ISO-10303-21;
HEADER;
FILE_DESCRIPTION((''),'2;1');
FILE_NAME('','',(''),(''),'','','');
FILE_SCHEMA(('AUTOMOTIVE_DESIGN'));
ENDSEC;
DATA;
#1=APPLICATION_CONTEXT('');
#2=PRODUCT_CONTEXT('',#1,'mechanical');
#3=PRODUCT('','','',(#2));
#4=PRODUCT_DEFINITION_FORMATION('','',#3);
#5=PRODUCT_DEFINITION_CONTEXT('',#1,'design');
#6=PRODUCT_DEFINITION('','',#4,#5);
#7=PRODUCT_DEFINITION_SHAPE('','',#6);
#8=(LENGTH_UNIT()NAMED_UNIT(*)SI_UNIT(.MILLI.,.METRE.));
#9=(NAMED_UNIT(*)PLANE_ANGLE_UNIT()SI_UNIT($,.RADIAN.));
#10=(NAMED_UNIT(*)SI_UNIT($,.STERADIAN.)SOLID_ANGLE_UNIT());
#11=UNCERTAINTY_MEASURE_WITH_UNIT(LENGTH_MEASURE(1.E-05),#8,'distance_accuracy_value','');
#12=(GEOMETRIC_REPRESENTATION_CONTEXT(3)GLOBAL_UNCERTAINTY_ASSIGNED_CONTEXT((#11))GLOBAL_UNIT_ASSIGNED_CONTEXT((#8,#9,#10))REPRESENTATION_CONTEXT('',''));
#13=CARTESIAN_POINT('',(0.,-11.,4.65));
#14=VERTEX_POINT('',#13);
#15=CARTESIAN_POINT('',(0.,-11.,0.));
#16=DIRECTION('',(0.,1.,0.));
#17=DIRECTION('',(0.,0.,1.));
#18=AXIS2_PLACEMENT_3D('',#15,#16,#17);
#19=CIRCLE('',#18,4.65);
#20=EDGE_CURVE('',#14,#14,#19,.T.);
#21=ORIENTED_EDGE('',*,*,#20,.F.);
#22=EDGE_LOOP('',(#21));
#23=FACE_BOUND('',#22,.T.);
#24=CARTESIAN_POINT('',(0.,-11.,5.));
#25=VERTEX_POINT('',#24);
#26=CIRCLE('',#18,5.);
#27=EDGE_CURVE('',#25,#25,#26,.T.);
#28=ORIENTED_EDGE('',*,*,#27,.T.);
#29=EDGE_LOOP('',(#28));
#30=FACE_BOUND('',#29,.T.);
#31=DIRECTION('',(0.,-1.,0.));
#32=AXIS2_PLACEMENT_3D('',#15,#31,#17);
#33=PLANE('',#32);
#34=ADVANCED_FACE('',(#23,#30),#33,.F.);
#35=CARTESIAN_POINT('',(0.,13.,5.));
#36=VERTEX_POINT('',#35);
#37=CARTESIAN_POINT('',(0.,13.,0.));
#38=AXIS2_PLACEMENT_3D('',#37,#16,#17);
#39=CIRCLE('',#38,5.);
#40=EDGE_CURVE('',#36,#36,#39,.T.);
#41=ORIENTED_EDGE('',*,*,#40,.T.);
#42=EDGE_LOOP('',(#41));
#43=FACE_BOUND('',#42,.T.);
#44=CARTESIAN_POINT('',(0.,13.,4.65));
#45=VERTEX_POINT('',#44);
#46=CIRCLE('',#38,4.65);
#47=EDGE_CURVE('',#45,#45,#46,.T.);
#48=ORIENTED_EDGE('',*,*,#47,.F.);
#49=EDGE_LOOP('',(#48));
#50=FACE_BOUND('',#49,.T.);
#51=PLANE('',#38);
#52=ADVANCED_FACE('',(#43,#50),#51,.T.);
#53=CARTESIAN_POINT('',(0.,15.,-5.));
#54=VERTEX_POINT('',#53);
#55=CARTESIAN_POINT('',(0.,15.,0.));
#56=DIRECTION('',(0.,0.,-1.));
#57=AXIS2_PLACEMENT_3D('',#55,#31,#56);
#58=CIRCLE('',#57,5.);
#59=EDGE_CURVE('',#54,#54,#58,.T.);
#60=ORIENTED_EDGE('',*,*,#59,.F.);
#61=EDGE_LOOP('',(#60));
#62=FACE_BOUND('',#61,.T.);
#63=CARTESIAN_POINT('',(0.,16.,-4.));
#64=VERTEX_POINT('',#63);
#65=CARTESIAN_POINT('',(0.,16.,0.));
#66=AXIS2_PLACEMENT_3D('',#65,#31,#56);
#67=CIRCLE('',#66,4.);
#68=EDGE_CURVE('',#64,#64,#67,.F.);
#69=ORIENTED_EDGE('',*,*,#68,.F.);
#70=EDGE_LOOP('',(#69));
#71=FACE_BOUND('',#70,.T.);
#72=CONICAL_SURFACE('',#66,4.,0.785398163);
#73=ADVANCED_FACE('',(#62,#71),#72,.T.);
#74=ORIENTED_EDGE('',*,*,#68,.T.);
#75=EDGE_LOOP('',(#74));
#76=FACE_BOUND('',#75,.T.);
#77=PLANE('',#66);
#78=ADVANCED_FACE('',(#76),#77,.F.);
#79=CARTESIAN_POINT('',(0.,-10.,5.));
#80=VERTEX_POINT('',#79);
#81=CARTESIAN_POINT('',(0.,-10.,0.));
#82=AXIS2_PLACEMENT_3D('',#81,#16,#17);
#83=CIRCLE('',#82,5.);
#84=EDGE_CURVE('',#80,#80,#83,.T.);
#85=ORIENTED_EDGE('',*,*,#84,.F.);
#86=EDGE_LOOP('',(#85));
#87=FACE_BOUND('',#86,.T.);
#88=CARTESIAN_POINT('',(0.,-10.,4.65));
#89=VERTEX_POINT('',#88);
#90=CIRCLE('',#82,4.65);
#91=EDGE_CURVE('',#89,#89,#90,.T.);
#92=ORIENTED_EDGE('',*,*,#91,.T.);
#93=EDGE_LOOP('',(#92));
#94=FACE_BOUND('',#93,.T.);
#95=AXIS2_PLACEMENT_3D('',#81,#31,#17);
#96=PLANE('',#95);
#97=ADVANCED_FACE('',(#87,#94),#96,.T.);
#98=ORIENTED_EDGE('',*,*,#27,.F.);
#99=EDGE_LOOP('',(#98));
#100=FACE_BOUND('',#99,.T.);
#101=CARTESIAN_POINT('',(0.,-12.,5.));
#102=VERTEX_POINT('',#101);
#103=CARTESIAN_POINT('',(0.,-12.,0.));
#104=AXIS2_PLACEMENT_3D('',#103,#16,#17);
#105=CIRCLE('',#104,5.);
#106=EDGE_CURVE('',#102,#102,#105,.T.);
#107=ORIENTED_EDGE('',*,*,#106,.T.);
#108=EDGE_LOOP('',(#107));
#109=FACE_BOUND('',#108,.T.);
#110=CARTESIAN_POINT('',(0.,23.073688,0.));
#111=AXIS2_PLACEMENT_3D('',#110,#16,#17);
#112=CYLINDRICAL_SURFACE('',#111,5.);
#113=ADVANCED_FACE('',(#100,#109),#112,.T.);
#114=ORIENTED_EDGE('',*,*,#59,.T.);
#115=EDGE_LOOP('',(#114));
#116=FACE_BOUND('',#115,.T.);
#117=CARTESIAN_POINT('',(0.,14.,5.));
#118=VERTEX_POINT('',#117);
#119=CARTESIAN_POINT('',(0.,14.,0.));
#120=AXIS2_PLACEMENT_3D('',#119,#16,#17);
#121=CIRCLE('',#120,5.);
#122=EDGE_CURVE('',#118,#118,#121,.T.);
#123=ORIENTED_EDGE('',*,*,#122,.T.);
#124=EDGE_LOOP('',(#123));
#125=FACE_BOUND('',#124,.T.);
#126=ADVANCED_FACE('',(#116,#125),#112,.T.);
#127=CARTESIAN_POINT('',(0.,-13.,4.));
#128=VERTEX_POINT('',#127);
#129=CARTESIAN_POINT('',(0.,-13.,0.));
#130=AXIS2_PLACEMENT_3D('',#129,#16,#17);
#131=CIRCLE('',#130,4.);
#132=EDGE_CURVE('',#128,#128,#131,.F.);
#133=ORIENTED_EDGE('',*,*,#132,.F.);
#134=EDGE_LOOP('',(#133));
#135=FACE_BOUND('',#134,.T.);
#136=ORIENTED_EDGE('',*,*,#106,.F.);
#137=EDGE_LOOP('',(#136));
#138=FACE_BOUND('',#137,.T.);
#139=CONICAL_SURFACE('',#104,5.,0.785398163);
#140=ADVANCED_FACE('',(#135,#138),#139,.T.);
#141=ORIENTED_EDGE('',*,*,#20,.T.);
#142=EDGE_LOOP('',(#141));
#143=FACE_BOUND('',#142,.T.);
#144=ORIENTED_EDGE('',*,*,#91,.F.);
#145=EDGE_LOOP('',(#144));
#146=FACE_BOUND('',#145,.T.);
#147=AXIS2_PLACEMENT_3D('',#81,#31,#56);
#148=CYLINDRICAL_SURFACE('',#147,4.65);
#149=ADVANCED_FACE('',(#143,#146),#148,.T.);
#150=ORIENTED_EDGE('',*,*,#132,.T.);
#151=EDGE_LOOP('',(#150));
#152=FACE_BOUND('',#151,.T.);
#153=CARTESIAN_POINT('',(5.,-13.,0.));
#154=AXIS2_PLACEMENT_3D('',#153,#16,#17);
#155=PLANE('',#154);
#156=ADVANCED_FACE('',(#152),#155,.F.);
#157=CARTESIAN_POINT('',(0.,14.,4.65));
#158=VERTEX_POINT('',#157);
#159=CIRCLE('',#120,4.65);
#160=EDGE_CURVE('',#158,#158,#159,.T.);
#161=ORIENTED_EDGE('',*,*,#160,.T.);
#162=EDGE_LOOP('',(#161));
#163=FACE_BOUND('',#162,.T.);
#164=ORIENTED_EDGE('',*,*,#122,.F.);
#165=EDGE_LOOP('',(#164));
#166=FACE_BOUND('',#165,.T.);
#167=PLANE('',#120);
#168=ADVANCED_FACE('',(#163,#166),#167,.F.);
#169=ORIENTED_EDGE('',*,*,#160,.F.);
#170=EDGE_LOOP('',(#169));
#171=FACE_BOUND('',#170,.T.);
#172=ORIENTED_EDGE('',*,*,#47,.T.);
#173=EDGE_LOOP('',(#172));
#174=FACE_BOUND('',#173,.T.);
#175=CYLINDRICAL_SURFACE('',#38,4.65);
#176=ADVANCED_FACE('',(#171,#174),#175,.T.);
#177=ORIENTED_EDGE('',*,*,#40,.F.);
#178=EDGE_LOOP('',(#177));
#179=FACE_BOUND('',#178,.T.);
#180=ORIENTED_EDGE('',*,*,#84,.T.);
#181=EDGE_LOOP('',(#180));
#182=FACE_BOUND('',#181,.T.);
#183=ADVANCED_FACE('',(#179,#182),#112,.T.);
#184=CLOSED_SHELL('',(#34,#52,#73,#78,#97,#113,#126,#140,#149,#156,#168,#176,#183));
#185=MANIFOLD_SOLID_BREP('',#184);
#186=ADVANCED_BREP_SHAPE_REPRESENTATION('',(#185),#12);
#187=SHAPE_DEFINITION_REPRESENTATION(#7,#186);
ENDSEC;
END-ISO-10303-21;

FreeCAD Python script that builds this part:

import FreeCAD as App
import Part
import Sketcher


def edges_at(feature, points):
    """Names of the edges that pass closest to the given points."""
    edges = feature.Shape.Edges
    near = lambda p: min(range(len(edges)), key=lambda i: edges[i].distToShape(Part.Vertex(*p))[0])
    return sorted({f"Edge{near(p) + 1}" for p in points})

doc = App.newDocument("Part")
body = doc.addObject("PartDesign::Body", "Body")

# Sketch on XY plane
sketch1 = body.newObject("Sketcher::SketchObject", "Sketch")
sketch1.AttachmentSupport = (doc.getObject("XY_Plane"), [""])
sketch1.MapMode = "FlatFace"
sketch1.addGeometry([
    Part.LineSegment(App.Vector(5, 16, 0), App.Vector(0, 16, 0)),
    Part.LineSegment(App.Vector(0, 16, 0), App.Vector(0, -13, 0)),
    Part.LineSegment(App.Vector(0, -13, 0), App.Vector(5, -13, 0)),
    Part.LineSegment(App.Vector(5, -13, 0), App.Vector(5, 16, 0)),
], False)
sketch1.addConstraint([
    Sketcher.Constraint("Coincident", 0, 2, 1, 1),
    Sketcher.Constraint("Coincident", 1, 2, 2, 1),
    Sketcher.Constraint("Coincident", 2, 2, 3, 1),
    Sketcher.Constraint("Coincident", 3, 2, 0, 1),
    Sketcher.Constraint("Horizontal", 0),
    Sketcher.Constraint("Vertical", 1),
    Sketcher.Constraint("Horizontal", 2),
    Sketcher.Constraint("Vertical", 3),
    Sketcher.Constraint("PointOnObject", 0, 2, -2),
    Sketcher.Constraint("DistanceX", 0, 2, 0, 1, 5.0),
    Sketcher.Constraint("DistanceY", 1, 2, 1, 1, 29.0),
    Sketcher.Constraint("DistanceY", -1, 1, 0, 2, 16.0),
])
revolution = body.newObject("PartDesign::Revolution", "Revolution")
revolution.Profile = sketch1
revolution.ReferenceAxis = (sketch1, ["V_Axis"])
revolution.Angle = 360
doc.recompute()

chamfer = body.newObject("PartDesign::Chamfer", "Chamfer")
chamfer.Base = (revolution, edges_at(revolution, [(0, -13, -5), (0, 16, -5)]))
chamfer.Size = 1

# Sketch on XZ plane
sketch2 = body.newObject("Sketcher::SketchObject", "Sketch001")
sketch2.AttachmentSupport = (doc.getObject("XZ_Plane"), [""])
sketch2.MapMode = "FlatFace"
sketch2.AttachmentOffset = App.Placement(App.Vector(0, 0, -13), App.Rotation())
sketch2.addGeometry([
    Part.Circle(App.Vector(0, 0, 0), App.Vector(0, 0, 1), 5),
    Part.Circle(App.Vector(0, 0, 0), App.Vector(0, 0, 1), 4.7),
], False)
sketch2.addConstraint([
    Sketcher.Constraint("Coincident", 0, 3, -1, 1),
    Sketcher.Constraint("Coincident", 1, 3, -1, 1),
    Sketcher.Constraint("Diameter", 0, 10.0),
    Sketcher.Constraint("Diameter", 1, 9.3),
])
pocket1 = body.newObject("PartDesign::Pocket", "Pocket")
pocket1.Profile = sketch2
pocket1.Length = 1
doc.recompute()

datumplane = body.newObject("PartDesign::Plane", "DatumPlane")
datumplane.AttachmentSupport = (doc.getObject("XZ_Plane"), [""])
datumplane.MapMode = "FlatFace"
datumplane.AttachmentOffset = App.Placement(App.Vector(0, 0, -1.5), App.Rotation())
mirrored = body.newObject("PartDesign::Mirrored", "Mirrored")
mirrored.Originals = [pocket1]
mirrored.MirrorPlane = (datumplane, [""])
body.Tip = mirrored

doc.recompute()
